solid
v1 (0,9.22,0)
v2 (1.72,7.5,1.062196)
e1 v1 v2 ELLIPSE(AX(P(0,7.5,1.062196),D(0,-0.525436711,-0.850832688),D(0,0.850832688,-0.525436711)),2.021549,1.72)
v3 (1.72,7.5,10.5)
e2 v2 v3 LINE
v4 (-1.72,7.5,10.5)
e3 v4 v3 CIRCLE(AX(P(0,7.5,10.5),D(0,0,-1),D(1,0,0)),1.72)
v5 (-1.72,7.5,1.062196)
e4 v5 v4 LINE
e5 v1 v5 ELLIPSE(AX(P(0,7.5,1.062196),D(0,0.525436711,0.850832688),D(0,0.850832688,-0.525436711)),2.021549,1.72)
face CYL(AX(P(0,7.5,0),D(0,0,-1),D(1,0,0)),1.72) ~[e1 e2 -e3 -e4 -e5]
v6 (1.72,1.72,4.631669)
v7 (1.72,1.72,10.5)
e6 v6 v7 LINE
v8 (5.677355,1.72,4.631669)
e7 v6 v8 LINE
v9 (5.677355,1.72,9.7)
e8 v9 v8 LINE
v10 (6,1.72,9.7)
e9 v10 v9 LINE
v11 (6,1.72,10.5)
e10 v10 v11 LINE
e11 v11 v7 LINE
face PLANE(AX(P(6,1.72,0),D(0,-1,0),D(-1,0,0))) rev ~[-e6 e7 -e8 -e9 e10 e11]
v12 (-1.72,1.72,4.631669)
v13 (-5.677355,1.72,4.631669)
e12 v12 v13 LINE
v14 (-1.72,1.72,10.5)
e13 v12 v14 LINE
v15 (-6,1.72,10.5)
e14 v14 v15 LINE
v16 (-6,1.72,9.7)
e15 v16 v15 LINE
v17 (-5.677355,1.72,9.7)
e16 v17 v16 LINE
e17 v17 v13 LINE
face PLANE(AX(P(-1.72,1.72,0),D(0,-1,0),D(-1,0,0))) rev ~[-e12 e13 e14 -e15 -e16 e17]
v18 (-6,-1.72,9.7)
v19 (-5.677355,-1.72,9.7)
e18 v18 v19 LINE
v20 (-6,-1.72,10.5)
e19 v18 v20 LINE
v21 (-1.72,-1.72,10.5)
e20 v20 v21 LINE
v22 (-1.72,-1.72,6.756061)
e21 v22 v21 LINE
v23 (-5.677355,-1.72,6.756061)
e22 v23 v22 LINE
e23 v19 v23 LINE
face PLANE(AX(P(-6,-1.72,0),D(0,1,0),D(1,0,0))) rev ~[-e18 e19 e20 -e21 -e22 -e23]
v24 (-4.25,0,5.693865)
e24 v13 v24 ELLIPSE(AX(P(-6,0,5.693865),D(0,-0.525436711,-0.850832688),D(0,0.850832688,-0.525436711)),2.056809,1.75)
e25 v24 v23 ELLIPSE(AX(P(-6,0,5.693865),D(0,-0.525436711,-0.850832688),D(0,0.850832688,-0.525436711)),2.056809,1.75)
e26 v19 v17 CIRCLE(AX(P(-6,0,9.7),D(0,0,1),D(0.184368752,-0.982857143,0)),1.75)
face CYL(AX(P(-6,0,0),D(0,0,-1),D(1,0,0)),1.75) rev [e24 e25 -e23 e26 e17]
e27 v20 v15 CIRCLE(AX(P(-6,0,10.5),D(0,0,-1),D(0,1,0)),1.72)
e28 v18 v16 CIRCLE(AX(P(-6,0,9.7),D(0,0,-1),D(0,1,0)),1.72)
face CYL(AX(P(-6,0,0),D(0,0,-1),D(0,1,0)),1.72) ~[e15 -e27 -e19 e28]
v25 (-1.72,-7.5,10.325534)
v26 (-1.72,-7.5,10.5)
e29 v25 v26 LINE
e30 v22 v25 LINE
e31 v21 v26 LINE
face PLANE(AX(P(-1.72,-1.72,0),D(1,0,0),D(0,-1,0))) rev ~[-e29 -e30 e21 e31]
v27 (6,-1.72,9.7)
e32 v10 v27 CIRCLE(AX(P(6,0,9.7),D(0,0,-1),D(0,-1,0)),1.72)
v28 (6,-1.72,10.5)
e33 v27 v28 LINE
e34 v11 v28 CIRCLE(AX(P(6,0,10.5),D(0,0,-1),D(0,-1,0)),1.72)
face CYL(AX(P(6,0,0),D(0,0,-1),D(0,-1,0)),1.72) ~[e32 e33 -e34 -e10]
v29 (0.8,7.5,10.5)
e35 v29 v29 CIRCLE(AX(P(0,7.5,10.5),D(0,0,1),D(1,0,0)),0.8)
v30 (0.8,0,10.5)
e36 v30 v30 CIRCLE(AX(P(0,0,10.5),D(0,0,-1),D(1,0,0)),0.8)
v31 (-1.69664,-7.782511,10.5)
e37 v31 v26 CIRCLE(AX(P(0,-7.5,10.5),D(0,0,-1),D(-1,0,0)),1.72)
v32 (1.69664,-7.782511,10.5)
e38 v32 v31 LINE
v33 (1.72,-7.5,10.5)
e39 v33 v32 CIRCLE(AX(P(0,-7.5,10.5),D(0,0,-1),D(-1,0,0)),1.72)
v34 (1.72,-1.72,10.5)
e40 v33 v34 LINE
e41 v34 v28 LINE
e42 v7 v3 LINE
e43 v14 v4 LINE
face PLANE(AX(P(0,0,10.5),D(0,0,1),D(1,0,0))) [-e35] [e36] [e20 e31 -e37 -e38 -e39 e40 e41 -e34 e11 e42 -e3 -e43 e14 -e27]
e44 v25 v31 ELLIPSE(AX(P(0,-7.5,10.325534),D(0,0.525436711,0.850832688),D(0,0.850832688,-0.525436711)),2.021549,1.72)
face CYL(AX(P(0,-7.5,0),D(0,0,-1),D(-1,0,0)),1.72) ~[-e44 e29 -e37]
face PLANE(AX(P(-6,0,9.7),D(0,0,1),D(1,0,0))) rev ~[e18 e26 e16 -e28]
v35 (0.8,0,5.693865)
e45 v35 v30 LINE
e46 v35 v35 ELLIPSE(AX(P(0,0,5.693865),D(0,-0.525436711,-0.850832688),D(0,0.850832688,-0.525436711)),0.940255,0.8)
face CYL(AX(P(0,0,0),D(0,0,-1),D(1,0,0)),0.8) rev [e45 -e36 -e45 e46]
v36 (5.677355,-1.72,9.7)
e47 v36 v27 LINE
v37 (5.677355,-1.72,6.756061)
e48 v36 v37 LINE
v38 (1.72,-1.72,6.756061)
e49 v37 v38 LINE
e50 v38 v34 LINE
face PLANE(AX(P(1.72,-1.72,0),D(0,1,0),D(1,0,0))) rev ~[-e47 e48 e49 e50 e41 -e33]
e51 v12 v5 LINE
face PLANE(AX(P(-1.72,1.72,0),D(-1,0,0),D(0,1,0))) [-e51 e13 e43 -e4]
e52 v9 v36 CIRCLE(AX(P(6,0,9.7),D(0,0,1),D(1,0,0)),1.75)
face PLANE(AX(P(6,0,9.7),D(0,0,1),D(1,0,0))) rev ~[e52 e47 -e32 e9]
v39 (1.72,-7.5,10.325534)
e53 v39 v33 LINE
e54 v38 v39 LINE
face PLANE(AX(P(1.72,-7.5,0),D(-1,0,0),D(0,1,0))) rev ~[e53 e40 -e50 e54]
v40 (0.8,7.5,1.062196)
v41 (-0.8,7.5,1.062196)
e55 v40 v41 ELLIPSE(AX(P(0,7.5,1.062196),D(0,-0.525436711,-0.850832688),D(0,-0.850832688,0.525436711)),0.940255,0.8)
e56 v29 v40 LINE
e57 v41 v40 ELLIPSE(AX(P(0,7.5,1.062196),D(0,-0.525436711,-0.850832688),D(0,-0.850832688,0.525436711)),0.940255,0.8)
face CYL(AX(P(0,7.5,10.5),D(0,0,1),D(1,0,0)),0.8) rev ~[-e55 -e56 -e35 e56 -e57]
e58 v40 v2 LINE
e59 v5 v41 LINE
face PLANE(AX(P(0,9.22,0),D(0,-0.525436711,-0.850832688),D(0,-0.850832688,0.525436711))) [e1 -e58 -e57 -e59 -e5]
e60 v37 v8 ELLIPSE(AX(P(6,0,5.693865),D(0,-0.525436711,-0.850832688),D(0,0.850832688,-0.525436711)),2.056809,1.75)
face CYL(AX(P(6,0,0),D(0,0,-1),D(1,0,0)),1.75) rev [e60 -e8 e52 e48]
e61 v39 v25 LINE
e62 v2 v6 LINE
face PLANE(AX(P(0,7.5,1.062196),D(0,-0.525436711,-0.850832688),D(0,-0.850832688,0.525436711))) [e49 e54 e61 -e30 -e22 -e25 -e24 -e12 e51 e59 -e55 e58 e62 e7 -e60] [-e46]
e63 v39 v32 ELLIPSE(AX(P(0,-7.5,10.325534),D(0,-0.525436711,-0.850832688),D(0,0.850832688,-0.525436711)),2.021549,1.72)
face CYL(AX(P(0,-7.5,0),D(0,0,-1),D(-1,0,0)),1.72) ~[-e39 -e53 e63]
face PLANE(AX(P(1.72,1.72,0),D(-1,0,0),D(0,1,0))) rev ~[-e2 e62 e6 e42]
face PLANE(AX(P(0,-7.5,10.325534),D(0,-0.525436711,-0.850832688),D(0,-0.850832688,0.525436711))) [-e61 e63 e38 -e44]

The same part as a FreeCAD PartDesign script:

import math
import FreeCAD as App
import Part
import Sketcher
from FreeCAD import Vector

doc = App.newDocument("Part")
body = doc.addObject("PartDesign::Body", "Body")

# Sketch on XY plane
sketch1 = body.newObject("Sketcher::SketchObject", "Sketch")
sketch1.AttachmentSupport = (doc.getObject("XY_Plane"), [""])
sketch1.MapMode = "FlatFace"
sketch1.addGeometry([
    Part.LineSegment(Vector(1.72, -1.72, 0), Vector(6, -1.72, 0)),  # 0
    Part.ArcOfCircle(Part.Circle(Vector(6, 0, 0), Vector(0, 0, 1), 1.72), math.radians(-90), math.radians(90)),  # 1
    Part.LineSegment(Vector(6, 1.72, 0), Vector(1.72, 1.72, 0)),  # 2
    Part.LineSegment(Vector(1.72, 1.72, 0), Vector(1.72, 7.5, 0)),  # 3
    Part.ArcOfCircle(Part.Circle(Vector(0, 7.5, 0), Vector(0, 0, 1), 1.72), math.radians(0), math.radians(180)),  # 4
    Part.LineSegment(Vector(-1.72, 7.5, 0), Vector(-1.72, 1.72, 0)),  # 5
    Part.LineSegment(Vector(-1.72, 1.72, 0), Vector(-6, 1.72, 0)),  # 6
    Part.ArcOfCircle(Part.Circle(Vector(-6, 0, 0), Vector(0, 0, 1), 1.72), math.radians(90), math.radians(270)),  # 7
    Part.LineSegment(Vector(-6, -1.72, 0), Vector(-1.72, -1.72, 0)),  # 8
    Part.LineSegment(Vector(-1.72, -1.72, 0), Vector(-1.72, -7.5, 0)),  # 9
    Part.ArcOfCircle(Part.Circle(Vector(0, -7.5, 0), Vector(0, 0, 1), 1.72), math.radians(180), math.radians(360)),  # 10
    Part.LineSegment(Vector(1.72, -7.5, 0), Vector(1.72, -1.72, 0)),  # 11
], False)
sketch1.addConstraint([
    Sketcher.Constraint("Tangent", 0, 2, 1, 1),
    Sketcher.Constraint("Tangent", 1, 2, 2, 1),
    Sketcher.Constraint("Coincident", 2, 2, 3, 1),
    Sketcher.Constraint("Tangent", 3, 2, 4, 1),
    Sketcher.Constraint("Tangent", 4, 2, 5, 1),
    Sketcher.Constraint("Coincident", 5, 2, 6, 1),
    Sketcher.Constraint("Tangent", 6, 2, 7, 1),
    Sketcher.Constraint("Tangent", 7, 2, 8, 1),
    Sketcher.Constraint("Coincident", 8, 2, 9, 1),
    Sketcher.Constraint("Tangent", 9, 2, 10, 1),
    Sketcher.Constraint("Tangent", 10, 2, 11, 1),
    Sketcher.Constraint("Coincident", 11, 2, 0, 1),
    Sketcher.Constraint("Horizontal", 0),
    Sketcher.Constraint("Horizontal", 2),
    Sketcher.Constraint("Vertical", 3),
    Sketcher.Constraint("Vertical", 5),
    Sketcher.Constraint("Horizontal", 6),
    Sketcher.Constraint("Horizontal", 8),
    Sketcher.Constraint("Vertical", 9),
    Sketcher.Constraint("Vertical", 11),
    Sketcher.Constraint("Equal", 1, 4),
    Sketcher.Constraint("Equal", 4, 7),
    Sketcher.Constraint("Equal", 7, 10),
    Sketcher.Constraint("Symmetric", 1, 3, 7, 3, -1, 1),
    Sketcher.Constraint("Symmetric", 4, 3, 10, 3, -1, 1),
    Sketcher.Constraint("Symmetric", 2, 2, 5, 2, -2),
    Sketcher.Constraint("Radius", 1, 1.72),
    Sketcher.Constraint("DistanceX", -1, 1, 1, 3, 6.0),
    Sketcher.Constraint("DistanceY", 10, 3, 4, 3, 15.0),
])
pad1 = body.newObject("PartDesign::Pad", "Pad")
pad1.Profile = sketch1
pad1.Length = 12

# Sketch on YZ plane
sketch2 = body.newObject("Sketcher::SketchObject", "Sketch001")
sketch2.AttachmentSupport = (doc.getObject("YZ_Plane"), [""])
sketch2.MapMode = "FlatFace"
sketch2.addGeometry([
    Part.LineSegment(Vector(9.22, 0, 0), Vector(7.5, 1.062196, 0)),  # 0
    Part.LineSegment(Vector(7.5, 1.062196, 0), Vector(-7.5, 10.325534, 0)),  # 1
    Part.LineSegment(Vector(-7.5, 10.325534, 0), Vector(-9.22, 11.38773, 0)),  # 2
    Part.LineSegment(Vector(-9.22, 11.38773, 0), Vector(-9.22, 0, 0)),  # 3
    Part.LineSegment(Vector(-9.22, 0, 0), Vector(9.22, 0, 0)),  # 4
], False)
sketch2.addConstraint([
    Sketcher.Constraint("Coincident", 0, 2, 1, 1),
    Sketcher.Constraint("Coincident", 1, 2, 2, 1),
    Sketcher.Constraint("Coincident", 2, 2, 3, 1),
    Sketcher.Constraint("Coincident", 3, 2, 4, 1),
    Sketcher.Constraint("Coincident", 4, 2, 0, 1),
    Sketcher.Constraint("Vertical", 3),
    Sketcher.Constraint("Horizontal", 4),
    Sketcher.Constraint("Symmetric", 3, 2, 4, 2, -1, 1),
    Sketcher.Constraint("Parallel", 0, 1),
    Sketcher.Constraint("Parallel", 1, 2),
    Sketcher.Constraint("Equal", 0, 2),
    Sketcher.Constraint("DistanceX", 1, 2, 0, 2, 15.0),
    Sketcher.Constraint("DistanceX", 4, 1, 4, 2, 18.44),
    Sketcher.Constraint("DistanceY", 3, 2, 3, 1, 11.38773),
])
pocket1 = body.newObject("PartDesign::Pocket", "Pocket")
pocket1.Profile = sketch2
pocket1.Type = "ThroughAll"
pocket1.Midplane = True

# Sketch on XY plane
sketch3 = body.newObject("Sketcher::SketchObject", "Sketch002")
sketch3.AttachmentSupport = (doc.getObject("XY_Plane"), [""])
sketch3.MapMode = "FlatFace"
sketch3.addGeometry(Part.Circle(Vector(0, 0, 0), Vector(0, 0, 1), 0.8), False)
sketch3.addConstraint([
    Sketcher.Constraint("Coincident", 0, 3, -1, 1),
    Sketcher.Constraint("Diameter", 0, 1.6),
])
pocket2 = body.newObject("PartDesign::Pocket", "Pocket001")
pocket2.Profile = sketch3
pocket2.Length = 55
pocket2.Reversed = True

# Sketch on XY plane
sketch4 = body.newObject("Sketcher::SketchObject", "Sketch003")
sketch4.AttachmentSupport = (doc.getObject("XY_Plane"), [""])
sketch4.MapMode = "FlatFace"
sketch4.AttachmentOffset = App.Placement(Vector(0, 0, 12), App.Rotation())
sketch4.addGeometry([
    Part.LineSegment(Vector(-15.320878, 11.972242, 0), Vector(-15.320878, -11.972242, 0)),
    Part.LineSegment(Vector(-15.320878, -11.972242, 0), Vector(15.320878, -11.972242, 0)),
    Part.LineSegment(Vector(15.320878, -11.972242, 0), Vector(15.320878, 11.972242, 0)),
    Part.LineSegment(Vector(15.320878, 11.972242, 0), Vector(-15.320878, 11.972242, 0)),
], False)
sketch4.addConstraint([
    Sketcher.Constraint("Coincident", 0, 2, 1, 1),
    Sketcher.Constraint("Coincident", 1, 2, 2, 1),
    Sketcher.Constraint("Coincident", 2, 2, 3, 1),
    Sketcher.Constraint("Coincident", 3, 2, 0, 1),
    Sketcher.Constraint("Vertical", 0),
    Sketcher.Constraint("Horizontal", 1),
    Sketcher.Constraint("Vertical", 2),
    Sketcher.Constraint("Horizontal", 3),
    Sketcher.Constraint("Symmetric", 0, 2, 2, 2, -1, 1),
    Sketcher.Constraint("DistanceX", 1, 1, 1, 2, 30.641757),
    Sketcher.Constraint("DistanceY", 0, 2, 0, 1, 23.944484),
])
pocket3 = body.newObject("PartDesign::Pocket", "Pocket002")
pocket3.Profile = sketch4
pocket3.Length = 1.5

# Sketch on XY plane
sketch5 = body.newObject("Sketcher::SketchObject", "Sketch004")
sketch5.AttachmentSupport = (doc.getObject("XY_Plane"), [""])
sketch5.MapMode = "FlatFace"
sketch5.AttachmentOffset = App.Placement(Vector(0, 0, 10.5), App.Rotation())
sketch5.addGeometry(Part.Circle(Vector(0, 7.5, 0), Vector(0, 0, 1), 0.8), False)
sketch5.addConstraint([
    Sketcher.Constraint("PointOnObject", 0, 3, -2),
    Sketcher.Constraint("Diameter", 0, 1.6),
    Sketcher.Constraint("DistanceY", -1, 1, 0, 3, 7.5),
])
pocket4 = body.newObject("PartDesign::Pocket", "Pocket003")
pocket4.Profile = sketch5
pocket4.Type = "ThroughAll"

# Sketch on XY plane
sketch6 = body.newObject("Sketcher::SketchObject", "Sketch005")
sketch6.AttachmentSupport = (doc.getObject("XY_Plane"), [""])
sketch6.MapMode = "FlatFace"
sketch6.addGeometry([
    Part.Circle(Vector(6, 0, 0), Vector(0, 0, 1), 1.75),
    Part.Circle(Vector(-6, 0, 0), Vector(0, 0, 1), 1.75),
], False)
sketch6.addConstraint([
    Sketcher.Constraint("Equal", 0, 1),
    Sketcher.Constraint("Symmetric", 0, 3, 1, 3, -1, 1),
    Sketcher.Constraint("PointOnObject", 0, 3, -1),
    Sketcher.Constraint("Diameter", 0, 3.5),
    Sketcher.Constraint("DistanceX", -1, 1, 0, 3, 6.0),
])
pocket5 = body.newObject("PartDesign::Pocket", "Pocket004")
pocket5.Profile = sketch6
pocket5.Length = 9.7
pocket5.Reversed = True

doc.recompute()
